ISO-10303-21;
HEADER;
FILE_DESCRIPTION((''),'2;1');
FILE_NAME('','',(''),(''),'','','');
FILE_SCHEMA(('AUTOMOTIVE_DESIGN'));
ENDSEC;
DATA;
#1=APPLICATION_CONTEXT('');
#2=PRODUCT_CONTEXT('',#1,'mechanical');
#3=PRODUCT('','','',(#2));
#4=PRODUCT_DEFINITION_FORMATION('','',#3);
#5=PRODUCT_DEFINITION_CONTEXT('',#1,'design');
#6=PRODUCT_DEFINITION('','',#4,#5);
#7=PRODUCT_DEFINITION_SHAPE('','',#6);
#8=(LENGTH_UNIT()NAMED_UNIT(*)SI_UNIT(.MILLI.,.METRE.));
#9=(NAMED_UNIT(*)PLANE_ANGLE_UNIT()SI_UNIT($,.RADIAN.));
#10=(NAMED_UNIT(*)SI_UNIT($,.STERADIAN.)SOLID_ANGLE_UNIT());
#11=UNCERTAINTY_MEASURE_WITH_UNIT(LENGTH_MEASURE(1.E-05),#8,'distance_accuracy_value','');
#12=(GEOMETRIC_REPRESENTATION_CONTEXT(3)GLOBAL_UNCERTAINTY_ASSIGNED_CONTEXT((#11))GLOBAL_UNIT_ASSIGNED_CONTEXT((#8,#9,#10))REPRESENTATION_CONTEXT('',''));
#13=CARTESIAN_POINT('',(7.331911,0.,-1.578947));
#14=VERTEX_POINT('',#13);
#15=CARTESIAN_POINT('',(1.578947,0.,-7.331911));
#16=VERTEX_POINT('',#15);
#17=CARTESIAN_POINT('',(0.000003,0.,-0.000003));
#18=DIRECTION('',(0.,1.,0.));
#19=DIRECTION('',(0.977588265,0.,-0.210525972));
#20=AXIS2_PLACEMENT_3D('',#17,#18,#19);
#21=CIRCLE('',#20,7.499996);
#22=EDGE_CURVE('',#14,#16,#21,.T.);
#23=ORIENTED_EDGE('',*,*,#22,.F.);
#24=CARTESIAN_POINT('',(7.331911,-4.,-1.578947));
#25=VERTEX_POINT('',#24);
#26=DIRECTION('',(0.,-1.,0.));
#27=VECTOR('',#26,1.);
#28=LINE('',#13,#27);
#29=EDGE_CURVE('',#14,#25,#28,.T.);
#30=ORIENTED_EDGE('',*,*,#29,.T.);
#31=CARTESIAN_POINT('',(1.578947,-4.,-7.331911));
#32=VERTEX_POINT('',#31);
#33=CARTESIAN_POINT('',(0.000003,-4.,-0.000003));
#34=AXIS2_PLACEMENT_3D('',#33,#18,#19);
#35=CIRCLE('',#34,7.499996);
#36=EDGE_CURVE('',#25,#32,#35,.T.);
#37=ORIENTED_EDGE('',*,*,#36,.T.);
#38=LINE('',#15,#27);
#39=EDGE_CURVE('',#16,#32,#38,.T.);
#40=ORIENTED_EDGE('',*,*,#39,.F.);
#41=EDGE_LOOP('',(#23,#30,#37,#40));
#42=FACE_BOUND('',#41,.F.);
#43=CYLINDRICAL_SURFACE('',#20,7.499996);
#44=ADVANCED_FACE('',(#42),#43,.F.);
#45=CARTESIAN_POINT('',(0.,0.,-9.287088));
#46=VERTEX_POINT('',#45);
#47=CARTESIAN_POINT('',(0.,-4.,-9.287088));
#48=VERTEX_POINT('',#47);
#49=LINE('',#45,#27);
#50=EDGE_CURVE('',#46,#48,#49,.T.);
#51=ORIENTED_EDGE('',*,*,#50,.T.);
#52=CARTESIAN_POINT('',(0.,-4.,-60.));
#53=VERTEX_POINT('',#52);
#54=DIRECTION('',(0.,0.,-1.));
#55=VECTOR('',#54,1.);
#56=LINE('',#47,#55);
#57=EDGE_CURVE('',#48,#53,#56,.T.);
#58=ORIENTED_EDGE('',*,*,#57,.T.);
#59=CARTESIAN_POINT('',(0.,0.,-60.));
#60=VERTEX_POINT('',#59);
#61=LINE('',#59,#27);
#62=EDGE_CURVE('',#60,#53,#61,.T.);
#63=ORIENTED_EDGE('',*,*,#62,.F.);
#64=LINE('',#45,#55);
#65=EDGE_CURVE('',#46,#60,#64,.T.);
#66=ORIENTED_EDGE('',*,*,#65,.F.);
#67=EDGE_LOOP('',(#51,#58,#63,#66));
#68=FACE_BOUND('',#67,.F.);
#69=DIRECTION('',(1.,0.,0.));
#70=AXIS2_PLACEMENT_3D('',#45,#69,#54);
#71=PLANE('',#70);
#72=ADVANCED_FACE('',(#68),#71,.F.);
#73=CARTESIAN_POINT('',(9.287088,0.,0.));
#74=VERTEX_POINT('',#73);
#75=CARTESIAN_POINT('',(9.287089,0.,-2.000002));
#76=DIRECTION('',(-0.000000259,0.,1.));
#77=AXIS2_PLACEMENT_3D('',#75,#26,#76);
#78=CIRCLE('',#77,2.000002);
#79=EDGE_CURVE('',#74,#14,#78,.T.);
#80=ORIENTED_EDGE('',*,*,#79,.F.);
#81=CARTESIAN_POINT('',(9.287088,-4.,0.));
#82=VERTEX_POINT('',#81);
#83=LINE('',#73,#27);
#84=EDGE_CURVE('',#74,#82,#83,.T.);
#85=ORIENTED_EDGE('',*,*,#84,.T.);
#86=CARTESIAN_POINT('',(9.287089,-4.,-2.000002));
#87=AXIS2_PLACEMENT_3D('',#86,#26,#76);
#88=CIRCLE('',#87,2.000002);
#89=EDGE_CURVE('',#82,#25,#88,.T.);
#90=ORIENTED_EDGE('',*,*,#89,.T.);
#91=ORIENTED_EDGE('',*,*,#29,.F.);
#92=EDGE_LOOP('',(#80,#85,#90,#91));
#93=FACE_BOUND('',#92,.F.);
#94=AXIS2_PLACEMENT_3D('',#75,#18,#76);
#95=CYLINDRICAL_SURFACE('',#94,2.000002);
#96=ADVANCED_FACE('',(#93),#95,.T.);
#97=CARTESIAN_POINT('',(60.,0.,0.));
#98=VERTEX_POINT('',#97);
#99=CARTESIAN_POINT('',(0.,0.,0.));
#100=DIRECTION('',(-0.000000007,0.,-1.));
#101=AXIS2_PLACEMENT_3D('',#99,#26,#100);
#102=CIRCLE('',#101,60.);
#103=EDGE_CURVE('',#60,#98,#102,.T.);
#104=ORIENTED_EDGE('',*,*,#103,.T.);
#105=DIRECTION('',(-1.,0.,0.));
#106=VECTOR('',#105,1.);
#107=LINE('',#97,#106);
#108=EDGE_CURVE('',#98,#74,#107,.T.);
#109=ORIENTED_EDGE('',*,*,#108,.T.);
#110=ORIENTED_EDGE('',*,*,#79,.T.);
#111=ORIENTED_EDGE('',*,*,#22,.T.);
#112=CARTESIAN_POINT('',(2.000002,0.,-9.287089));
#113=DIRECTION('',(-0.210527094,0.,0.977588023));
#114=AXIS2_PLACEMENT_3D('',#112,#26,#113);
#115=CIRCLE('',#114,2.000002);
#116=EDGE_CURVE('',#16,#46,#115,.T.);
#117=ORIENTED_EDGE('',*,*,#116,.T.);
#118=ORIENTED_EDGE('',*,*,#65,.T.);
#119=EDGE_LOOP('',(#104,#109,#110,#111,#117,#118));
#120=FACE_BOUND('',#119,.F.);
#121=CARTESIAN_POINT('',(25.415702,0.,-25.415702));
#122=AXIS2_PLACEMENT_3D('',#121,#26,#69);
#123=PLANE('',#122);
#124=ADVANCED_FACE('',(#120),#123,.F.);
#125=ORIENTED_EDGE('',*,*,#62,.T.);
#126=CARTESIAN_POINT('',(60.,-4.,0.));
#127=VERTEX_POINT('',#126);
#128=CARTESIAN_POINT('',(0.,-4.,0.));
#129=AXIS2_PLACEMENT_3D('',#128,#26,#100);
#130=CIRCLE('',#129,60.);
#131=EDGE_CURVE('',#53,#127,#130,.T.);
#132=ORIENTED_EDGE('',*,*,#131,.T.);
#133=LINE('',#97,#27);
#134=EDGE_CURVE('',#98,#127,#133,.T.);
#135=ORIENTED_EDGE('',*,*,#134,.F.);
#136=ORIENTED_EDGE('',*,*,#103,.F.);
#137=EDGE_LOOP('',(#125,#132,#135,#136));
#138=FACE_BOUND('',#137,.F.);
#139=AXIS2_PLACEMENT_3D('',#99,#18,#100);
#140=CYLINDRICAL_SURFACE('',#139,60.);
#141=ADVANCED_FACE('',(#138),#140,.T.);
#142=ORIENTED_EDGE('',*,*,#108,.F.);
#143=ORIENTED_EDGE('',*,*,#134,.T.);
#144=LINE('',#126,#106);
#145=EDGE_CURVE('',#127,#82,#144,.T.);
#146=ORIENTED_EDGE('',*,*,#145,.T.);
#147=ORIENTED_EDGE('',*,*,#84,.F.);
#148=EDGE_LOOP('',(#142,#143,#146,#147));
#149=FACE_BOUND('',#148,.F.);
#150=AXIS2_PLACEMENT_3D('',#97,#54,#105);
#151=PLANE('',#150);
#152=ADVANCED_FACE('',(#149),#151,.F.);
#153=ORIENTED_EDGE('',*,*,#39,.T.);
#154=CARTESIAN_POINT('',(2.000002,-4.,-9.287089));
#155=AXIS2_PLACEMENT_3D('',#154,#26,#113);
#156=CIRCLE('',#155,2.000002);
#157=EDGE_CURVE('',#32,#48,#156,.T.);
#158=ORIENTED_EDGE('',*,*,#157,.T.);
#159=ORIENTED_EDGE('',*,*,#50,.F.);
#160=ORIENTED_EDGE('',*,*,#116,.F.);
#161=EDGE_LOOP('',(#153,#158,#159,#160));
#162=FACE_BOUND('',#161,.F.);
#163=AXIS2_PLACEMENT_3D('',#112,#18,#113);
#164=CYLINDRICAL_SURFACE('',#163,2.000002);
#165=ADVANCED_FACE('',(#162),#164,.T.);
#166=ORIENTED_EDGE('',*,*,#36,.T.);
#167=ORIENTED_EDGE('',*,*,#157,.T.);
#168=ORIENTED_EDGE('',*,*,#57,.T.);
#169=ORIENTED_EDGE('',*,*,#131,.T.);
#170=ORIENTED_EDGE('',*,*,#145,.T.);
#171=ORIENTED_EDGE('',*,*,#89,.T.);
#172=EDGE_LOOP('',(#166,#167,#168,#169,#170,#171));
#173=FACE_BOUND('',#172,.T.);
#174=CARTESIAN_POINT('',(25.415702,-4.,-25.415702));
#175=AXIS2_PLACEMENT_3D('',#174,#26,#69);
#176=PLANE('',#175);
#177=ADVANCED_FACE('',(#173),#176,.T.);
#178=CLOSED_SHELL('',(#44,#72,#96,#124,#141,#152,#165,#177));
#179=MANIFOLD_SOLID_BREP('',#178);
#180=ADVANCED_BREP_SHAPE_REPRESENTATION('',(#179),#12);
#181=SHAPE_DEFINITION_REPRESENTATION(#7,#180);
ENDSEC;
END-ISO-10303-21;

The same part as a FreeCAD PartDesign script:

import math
import FreeCAD as App
import Part
import Sketcher
from FreeCAD import Vector
Q = App.Units.Quantity

doc = App.newDocument("Part")
body = doc.addObject("PartDesign::Body", "Body")

sketch1 = doc.addObject("Sketcher::SketchObject", "Sketch")
body.addObject(sketch1)
sketch1.AttachmentSupport = (doc.XZ_Plane, [""])
sketch1.MapMode = "FlatFace"
sketch1.addGeometry(Part.LineSegment(Vector(60, 0, 0), Vector(9.287088, 0, 0)), False)
sketch1.addGeometry(Part.ArcOfCircle(Part.Circle(Vector(9.287089, -2.000002, 0), Vector(0, 0, 1), 2.000002), math.radians(90.000015), math.radians(167.846757)), False)
sketch1.addGeometry(Part.ArcOfCircle(Part.Circle(Vector(0.000003, -0.000003, 0), Vector(0, 0, 1), 7.499996), math.radians(-77.846823), math.radians(-12.153177)), False)
sketch1.addGeometry(Part.ArcOfCircle(Part.Circle(Vector(2.000002, -9.287089, 0), Vector(0, 0, 1), 2.000002), math.radians(102.153243), math.radians(179.999985)), False)
sketch1.addGeometry(Part.LineSegment(Vector(0, -9.287088, 0), Vector(0, -60, 0)), False)
sketch1.addGeometry(Part.ArcOfCircle(Part.Circle(Vector(0, 0, 0), Vector(0, 0, 1), 60), math.radians(-90), math.radians(0)), False)
sketch1.addConstraint(Sketcher.Constraint("Tangent", 0, 2, 1, 1))
sketch1.addConstraint(Sketcher.Constraint("Tangent", 1, 2, 2, 2))
sketch1.addConstraint(Sketcher.Constraint("Tangent", 2, 1, 3, 1))
sketch1.addConstraint(Sketcher.Constraint("Tangent", 3, 2, 4, 1))
sketch1.addConstraint(Sketcher.Constraint("Coincident", 4, 2, 5, 1))
sketch1.addConstraint(Sketcher.Constraint("Coincident", 5, 2, 0, 1))
sketch1.addConstraint(Sketcher.Constraint("Horizontal", 0))
sketch1.addConstraint(Sketcher.Constraint("Vertical", 4))
sketch1.addConstraint(Sketcher.Constraint("Coincident", 2, 3, -1, 1))
sketch1.addConstraint(Sketcher.Constraint("Coincident", 5, 3, -1, 1))
sketch1.addConstraint(Sketcher.Constraint("Equal", 1, 3))
sketch1.addConstraint(Sketcher.Constraint("PointOnObject", 0, 2, -1))
sketch1.addConstraint(Sketcher.Constraint("PointOnObject", 3, 2, -2))
sketch1.addConstraint(Sketcher.Constraint("Radius", 1, Q("2.000002 mm")))
sketch1.addConstraint(Sketcher.Constraint("Radius", 5, Q("60 mm")))
sketch1.addConstraint(Sketcher.Constraint("Radius", 2, Q("7.499996 mm")))
pad1 = doc.addObject("PartDesign::Pad", "Pad")
body.addObject(pad1)
pad1.Profile = sketch1
pad1.Length = 4

doc.recompute()
